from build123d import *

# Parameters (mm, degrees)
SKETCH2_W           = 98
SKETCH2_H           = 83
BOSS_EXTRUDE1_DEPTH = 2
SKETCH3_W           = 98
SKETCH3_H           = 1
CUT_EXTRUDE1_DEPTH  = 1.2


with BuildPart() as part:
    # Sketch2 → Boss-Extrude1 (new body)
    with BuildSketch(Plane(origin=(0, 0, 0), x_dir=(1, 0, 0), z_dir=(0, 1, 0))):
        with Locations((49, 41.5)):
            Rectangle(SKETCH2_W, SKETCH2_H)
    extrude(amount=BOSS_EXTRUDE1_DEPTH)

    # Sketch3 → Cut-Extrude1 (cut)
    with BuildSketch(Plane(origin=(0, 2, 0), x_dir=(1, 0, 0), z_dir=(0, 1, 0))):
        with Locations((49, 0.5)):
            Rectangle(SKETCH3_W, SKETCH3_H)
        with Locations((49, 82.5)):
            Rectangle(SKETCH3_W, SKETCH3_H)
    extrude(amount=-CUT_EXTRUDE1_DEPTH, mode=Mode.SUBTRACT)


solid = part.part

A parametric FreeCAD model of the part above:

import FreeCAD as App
import Part
import Sketcher


def add_polygon(sketch, points):
    """Adds a closed chain of lines whose ends are joined by coincident constraints."""
    first, n = sketch.GeometryCount, len(points)
    for a, b in zip(points, points[1:] + points[:1]):
        sketch.addGeometry(Part.LineSegment(App.Vector(*a, 0), App.Vector(*b, 0)), False)
    for i in range(n):
        sketch.addConstraint(Sketcher.Constraint("Coincident", first + i, 2, first + (i + 1) % n, 1))

doc = App.newDocument("Part")
params = doc.addObject("Spreadsheet::Sheet", "Params")
for row, (alias, value) in enumerate([
    ("sketch1_width", "98 mm"),
    ("sketch1_height", "83 mm"),
    ("pad1_length", "2 mm"),
    ("sketch2_width", "98 mm"),
    ("sketch2_height", "1 mm"),
    ("pocket1_length", "1.2 mm"),
], start=1):
    params.set(f"A{row}", alias)
    params.set(f"B{row}", "=" + value)
    params.setAlias(f"B{row}", alias)

body = doc.addObject("PartDesign::Body", "Body")

# Sketch on XZ plane
sketch1 = doc.addObject("Sketcher::SketchObject", "Sketch")
body.addObject(sketch1)
sketch1.AttachmentSupport = (doc.XZ_Plane, [""])
sketch1.MapMode = "FlatFace"
add_polygon(sketch1, [(0, -83), (0, 0), (98, 0), (98, -83)])  # lines 0-3
sketch1.addConstraint([
    Sketcher.Constraint("Vertical", 0),
    Sketcher.Constraint("Horizontal", 1),
    Sketcher.Constraint("Vertical", 2),
    Sketcher.Constraint("Horizontal", 3),
    Sketcher.Constraint("Coincident", 0, 2, -1, 1),
    Sketcher.Constraint("DistanceX", 1, 1, 1, 2, 98.0),
    Sketcher.Constraint("DistanceY", 0, 1, 0, 2, 83.0),
])
sketch1.setExpression("Constraints[9]", "Params.sketch1_width")
sketch1.setExpression("Constraints[10]", "Params.sketch1_height")
pad1 = doc.addObject("PartDesign::Pad", "Pad")
body.addObject(pad1)
pad1.Profile = sketch1
pad1.setExpression("Length", "Params.pad1_length")
pad1.Reversed = True

# Sketch on XZ plane
sketch2 = doc.addObject("Sketcher::SketchObject", "Sketch001")
body.addObject(sketch2)
sketch2.AttachmentSupport = (doc.XZ_Plane, [""])
sketch2.MapMode = "FlatFace"
sketch2.AttachmentOffset = App.Placement(App.Vector(0, 0, -2), App.Rotation())
add_polygon(sketch2, [(0, -1), (0, 0), (98, 0), (98, -1)])  # lines 0-3
add_polygon(sketch2, [(0, -83), (0, -82), (98, -82), (98, -83)])  # lines 4-7
sketch2.addConstraint([
    Sketcher.Constraint("Vertical", 0),
    Sketcher.Constraint("Horizontal", 1),
    Sketcher.Constraint("Vertical", 2),
    Sketcher.Constraint("Horizontal", 3),
    Sketcher.Constraint("Vertical", 4),
    Sketcher.Constraint("Horizontal", 5),
    Sketcher.Constraint("Vertical", 6),
    Sketcher.Constraint("Horizontal", 7),
    Sketcher.Constraint("Coincident", 0, 2, -1, 1),
    Sketcher.Constraint("PointOnObject", 4, 2, -2),
    Sketcher.Constraint("Vertical", 2, 2, 5, 2),
    Sketcher.Constraint("Equal", 2, 4),
    Sketcher.Constraint("DistanceX", 1, 1, 1, 2, 98.0),
    Sketcher.Constraint("DistanceY", 0, 1, 0, 2, 1.0),
    Sketcher.Constraint("DistanceY", 4, 2, -1, 1, 82.0),
])
sketch2.setExpression("Constraints[20]", "Params.sketch2_width")
sketch2.setExpression("Constraints[21]", "Params.sketch2_height")
pocket1 = doc.addObject("PartDesign::Pocket", "Pocket")
body.addObject(pocket1)
pocket1.Profile = sketch2
pocket1.setExpression("Length", "Params.pocket1_length")
pocket1.Reversed = True

doc.recompute()
